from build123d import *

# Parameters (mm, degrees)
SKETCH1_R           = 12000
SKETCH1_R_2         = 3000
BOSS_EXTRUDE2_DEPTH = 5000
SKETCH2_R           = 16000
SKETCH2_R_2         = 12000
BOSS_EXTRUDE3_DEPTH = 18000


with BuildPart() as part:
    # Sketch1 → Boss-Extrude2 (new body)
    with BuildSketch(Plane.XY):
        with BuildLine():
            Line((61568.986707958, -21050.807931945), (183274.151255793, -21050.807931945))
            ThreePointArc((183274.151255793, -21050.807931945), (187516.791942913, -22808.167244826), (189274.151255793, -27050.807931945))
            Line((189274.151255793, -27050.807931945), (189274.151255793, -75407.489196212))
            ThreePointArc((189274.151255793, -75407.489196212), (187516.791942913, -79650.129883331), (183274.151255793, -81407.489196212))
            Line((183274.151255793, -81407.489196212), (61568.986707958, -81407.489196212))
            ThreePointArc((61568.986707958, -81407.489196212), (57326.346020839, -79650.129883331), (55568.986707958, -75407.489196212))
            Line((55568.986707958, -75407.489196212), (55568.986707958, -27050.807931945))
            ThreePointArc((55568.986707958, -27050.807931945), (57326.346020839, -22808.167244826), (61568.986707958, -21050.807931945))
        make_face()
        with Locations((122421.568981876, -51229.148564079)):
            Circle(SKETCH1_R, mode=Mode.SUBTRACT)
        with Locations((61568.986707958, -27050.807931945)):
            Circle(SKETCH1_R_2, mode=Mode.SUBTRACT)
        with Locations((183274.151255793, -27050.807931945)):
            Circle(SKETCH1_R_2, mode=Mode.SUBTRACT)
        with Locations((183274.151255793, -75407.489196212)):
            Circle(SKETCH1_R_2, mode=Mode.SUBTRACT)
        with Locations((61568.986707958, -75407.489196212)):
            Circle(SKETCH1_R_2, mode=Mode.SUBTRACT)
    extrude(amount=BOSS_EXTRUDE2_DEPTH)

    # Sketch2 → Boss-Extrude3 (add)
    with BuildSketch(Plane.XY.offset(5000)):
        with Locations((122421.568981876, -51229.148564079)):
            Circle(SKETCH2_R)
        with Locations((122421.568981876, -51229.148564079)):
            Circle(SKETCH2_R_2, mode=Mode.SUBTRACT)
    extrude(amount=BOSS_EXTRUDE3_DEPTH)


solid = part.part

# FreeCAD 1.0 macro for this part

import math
import FreeCAD as App
import Part
import Sketcher

doc = App.newDocument("Part")
body = doc.addObject("PartDesign::Body", "Body")

sketch1 = doc.addObject("Sketcher::SketchObject", "Sketch")
body.addObject(sketch1)
sketch1.AttachmentSupport = (doc.XY_Plane, [""])
sketch1.MapMode = "FlatFace"
sketch1.addGeometry(Part.LineSegment(App.Vector(183274, -21051, 0), App.Vector(61569, -21051, 0)), False)
sketch1.addGeometry(Part.ArcOfCircle(Part.Circle(App.Vector(61569, -27051, 0), App.Vector(0, 0, 1), 6000), math.radians(90), math.radians(180)), False)
sketch1.addGeometry(Part.LineSegment(App.Vector(55569, -27051, 0), App.Vector(55569, -75407, 0)), False)
sketch1.addGeometry(Part.ArcOfCircle(Part.Circle(App.Vector(61569, -75407, 0), App.Vector(0, 0, 1), 6000), math.radians(-180), math.radians(-90)), False)
sketch1.addGeometry(Part.LineSegment(App.Vector(61569, -81407, 0), App.Vector(183274, -81407, 0)), False)
sketch1.addGeometry(Part.ArcOfCircle(Part.Circle(App.Vector(183274, -75407, 0), App.Vector(0, 0, 1), 6000), math.radians(-90), math.radians(0)), False)
sketch1.addGeometry(Part.LineSegment(App.Vector(189274, -75407, 0), App.Vector(189274, -27051, 0)), False)
sketch1.addGeometry(Part.ArcOfCircle(Part.Circle(App.Vector(183274, -27051, 0), App.Vector(0, 0, 1), 6000), math.radians(0), math.radians(90)), False)
sketch1.addGeometry(Part.Circle(App.Vector(183274, -75407, 0), App.Vector(0, 0, 1), 3000), False)
sketch1.addGeometry(Part.Circle(App.Vector(122422, -51229, 0), App.Vector(0, 0, 1), 12000), False)
sketch1.addGeometry(Part.Circle(App.Vector(61569, -75407, 0), App.Vector(0, 0, 1), 3000), False)
sketch1.addGeometry(Part.Circle(App.Vector(183274, -27051, 0), App.Vector(0, 0, 1), 3000), False)
sketch1.addGeometry(Part.Circle(App.Vector(61569, -27051, 0), App.Vector(0, 0, 1), 3000), False)
sketch1.addConstraint(Sketcher.Constraint("Coincident", 0, 2, 1, 1))
sketch1.addConstraint(Sketcher.Constraint("Coincident", 1, 2, 2, 1))
sketch1.addConstraint(Sketcher.Constraint("Coincident", 2, 2, 3, 1))
sketch1.addConstraint(Sketcher.Constraint("Coincident", 3, 2, 4, 1))
sketch1.addConstraint(Sketcher.Constraint("Coincident", 4, 2, 5, 1))
sketch1.addConstraint(Sketcher.Constraint("Coincident", 5, 2, 6, 1))
sketch1.addConstraint(Sketcher.Constraint("Coincident", 6, 2, 7, 1))
sketch1.addConstraint(Sketcher.Constraint("Coincident", 7, 2, 0, 1))
sketch1.addConstraint(Sketcher.Constraint("Horizontal", 0))
sketch1.addConstraint(Sketcher.Constraint("Vertical", 2))
sketch1.addConstraint(Sketcher.Constraint("Horizontal", 4))
sketch1.addConstraint(Sketcher.Constraint("Vertical", 6))
sketch1.addConstraint(Sketcher.Constraint("Coincident", 8, 3, 5, 3))
sketch1.addConstraint(Sketcher.Constraint("Coincident", 10, 3, 3, 3))
sketch1.addConstraint(Sketcher.Constraint("Coincident", 11, 3, 7, 3))
sketch1.addConstraint(Sketcher.Constraint("Coincident", 12, 3, 1, 3))
sketch1.addConstraint(Sketcher.Constraint("Equal", 1, 3))
sketch1.addConstraint(Sketcher.Constraint("Equal", 3, 5))
sketch1.addConstraint(Sketcher.Constraint("Equal", 5, 7))
sketch1.addConstraint(Sketcher.Constraint("Equal", 8, 10))
sketch1.addConstraint(Sketcher.Constraint("Equal", 10, 11))
sketch1.addConstraint(Sketcher.Constraint("Equal", 11, 12))
sketch1.addConstraint(Sketcher.Constraint("Horizontal", 10, 3, 2, 2))
sketch1.addConstraint(Sketcher.Constraint("Vertical", 12, 3, 0, 2))
sketch1.addConstraint(Sketcher.Constraint("Vertical", 11, 3, 4, 2))
sketch1.addConstraint(Sketcher.Constraint("Equal", 0, 4))
sketch1.addConstraint(Sketcher.Constraint("Equal", 2, 6))
sketch1.addConstraint(Sketcher.Constraint("Diameter", 8, 6000.0))
sketch1.addConstraint(Sketcher.Constraint("Diameter", 9, 24000.0))
sketch1.addConstraint(Sketcher.Constraint("Radius", 1, 6000.0))
sketch1.addConstraint(Sketcher.Constraint("DistanceY", 6, 2, 7, 2, 6000.0))
sketch1.addConstraint(Sketcher.Constraint("DistanceX", 0, 2, 0, 1, 121705.164548))
sketch1.addConstraint(Sketcher.Constraint("DistanceY", 2, 2, 2, 1, 48356.681264))
sketch1.addConstraint(Sketcher.Constraint("DistanceY", 1, 3, -1, 1, 27050.807932))
sketch1.addConstraint(Sketcher.Constraint("DistanceX", -1, 1, 9, 3, 122421.568982))
sketch1.addConstraint(Sketcher.Constraint("DistanceX", -1, 1, 1, 3, 61568.986708))
sketch1.addConstraint(Sketcher.Constraint("DistanceY", 3, 3, -1, 1, 75407.489196))
sketch1.addConstraint(Sketcher.Constraint("DistanceX", -1, 1, 5, 3, 183274.151256))
sketch1.addConstraint(Sketcher.Constraint("DistanceY", 9, 3, -1, 1, 51229.148564))
pad1 = doc.addObject("PartDesign::Pad", "Pad")
body.addObject(pad1)
pad1.Profile = sketch1
pad1.Length = 5000

sketch2 = doc.addObject("Sketcher::SketchObject", "Sketch001")
body.addObject(sketch2)
sketch2.AttachmentSupport = (doc.XY_Plane, [""])
sketch2.MapMode = "FlatFace"
sketch2.AttachmentOffset = App.Placement(App.Vector(0, 0, 5000), App.Rotation())
sketch2.addGeometry(Part.Circle(App.Vector(122422, -51229, 0), App.Vector(0, 0, 1), 16000), False)
sketch2.addGeometry(Part.Circle(App.Vector(122422, -51229, 0), App.Vector(0, 0, 1), 12000), False)
sketch2.addConstraint(Sketcher.Constraint("Coincident", 1, 3, 0, 3))
sketch2.addConstraint(Sketcher.Constraint("Diameter", 0, 32000.0))
sketch2.addConstraint(Sketcher.Constraint("Diameter", 1, 24000.0))
sketch2.addConstraint(Sketcher.Constraint("DistanceX", -1, 1, 0, 3, 122421.568982))
sketch2.addConstraint(Sketcher.Constraint("DistanceY", 0, 3, -1, 1, 51229.148564))
pad2 = doc.addObject("PartDesign::Pad", "Pad001")
body.addObject(pad2)
pad2.Profile = sketch2
pad2.Length = 18000

doc.recompute()
